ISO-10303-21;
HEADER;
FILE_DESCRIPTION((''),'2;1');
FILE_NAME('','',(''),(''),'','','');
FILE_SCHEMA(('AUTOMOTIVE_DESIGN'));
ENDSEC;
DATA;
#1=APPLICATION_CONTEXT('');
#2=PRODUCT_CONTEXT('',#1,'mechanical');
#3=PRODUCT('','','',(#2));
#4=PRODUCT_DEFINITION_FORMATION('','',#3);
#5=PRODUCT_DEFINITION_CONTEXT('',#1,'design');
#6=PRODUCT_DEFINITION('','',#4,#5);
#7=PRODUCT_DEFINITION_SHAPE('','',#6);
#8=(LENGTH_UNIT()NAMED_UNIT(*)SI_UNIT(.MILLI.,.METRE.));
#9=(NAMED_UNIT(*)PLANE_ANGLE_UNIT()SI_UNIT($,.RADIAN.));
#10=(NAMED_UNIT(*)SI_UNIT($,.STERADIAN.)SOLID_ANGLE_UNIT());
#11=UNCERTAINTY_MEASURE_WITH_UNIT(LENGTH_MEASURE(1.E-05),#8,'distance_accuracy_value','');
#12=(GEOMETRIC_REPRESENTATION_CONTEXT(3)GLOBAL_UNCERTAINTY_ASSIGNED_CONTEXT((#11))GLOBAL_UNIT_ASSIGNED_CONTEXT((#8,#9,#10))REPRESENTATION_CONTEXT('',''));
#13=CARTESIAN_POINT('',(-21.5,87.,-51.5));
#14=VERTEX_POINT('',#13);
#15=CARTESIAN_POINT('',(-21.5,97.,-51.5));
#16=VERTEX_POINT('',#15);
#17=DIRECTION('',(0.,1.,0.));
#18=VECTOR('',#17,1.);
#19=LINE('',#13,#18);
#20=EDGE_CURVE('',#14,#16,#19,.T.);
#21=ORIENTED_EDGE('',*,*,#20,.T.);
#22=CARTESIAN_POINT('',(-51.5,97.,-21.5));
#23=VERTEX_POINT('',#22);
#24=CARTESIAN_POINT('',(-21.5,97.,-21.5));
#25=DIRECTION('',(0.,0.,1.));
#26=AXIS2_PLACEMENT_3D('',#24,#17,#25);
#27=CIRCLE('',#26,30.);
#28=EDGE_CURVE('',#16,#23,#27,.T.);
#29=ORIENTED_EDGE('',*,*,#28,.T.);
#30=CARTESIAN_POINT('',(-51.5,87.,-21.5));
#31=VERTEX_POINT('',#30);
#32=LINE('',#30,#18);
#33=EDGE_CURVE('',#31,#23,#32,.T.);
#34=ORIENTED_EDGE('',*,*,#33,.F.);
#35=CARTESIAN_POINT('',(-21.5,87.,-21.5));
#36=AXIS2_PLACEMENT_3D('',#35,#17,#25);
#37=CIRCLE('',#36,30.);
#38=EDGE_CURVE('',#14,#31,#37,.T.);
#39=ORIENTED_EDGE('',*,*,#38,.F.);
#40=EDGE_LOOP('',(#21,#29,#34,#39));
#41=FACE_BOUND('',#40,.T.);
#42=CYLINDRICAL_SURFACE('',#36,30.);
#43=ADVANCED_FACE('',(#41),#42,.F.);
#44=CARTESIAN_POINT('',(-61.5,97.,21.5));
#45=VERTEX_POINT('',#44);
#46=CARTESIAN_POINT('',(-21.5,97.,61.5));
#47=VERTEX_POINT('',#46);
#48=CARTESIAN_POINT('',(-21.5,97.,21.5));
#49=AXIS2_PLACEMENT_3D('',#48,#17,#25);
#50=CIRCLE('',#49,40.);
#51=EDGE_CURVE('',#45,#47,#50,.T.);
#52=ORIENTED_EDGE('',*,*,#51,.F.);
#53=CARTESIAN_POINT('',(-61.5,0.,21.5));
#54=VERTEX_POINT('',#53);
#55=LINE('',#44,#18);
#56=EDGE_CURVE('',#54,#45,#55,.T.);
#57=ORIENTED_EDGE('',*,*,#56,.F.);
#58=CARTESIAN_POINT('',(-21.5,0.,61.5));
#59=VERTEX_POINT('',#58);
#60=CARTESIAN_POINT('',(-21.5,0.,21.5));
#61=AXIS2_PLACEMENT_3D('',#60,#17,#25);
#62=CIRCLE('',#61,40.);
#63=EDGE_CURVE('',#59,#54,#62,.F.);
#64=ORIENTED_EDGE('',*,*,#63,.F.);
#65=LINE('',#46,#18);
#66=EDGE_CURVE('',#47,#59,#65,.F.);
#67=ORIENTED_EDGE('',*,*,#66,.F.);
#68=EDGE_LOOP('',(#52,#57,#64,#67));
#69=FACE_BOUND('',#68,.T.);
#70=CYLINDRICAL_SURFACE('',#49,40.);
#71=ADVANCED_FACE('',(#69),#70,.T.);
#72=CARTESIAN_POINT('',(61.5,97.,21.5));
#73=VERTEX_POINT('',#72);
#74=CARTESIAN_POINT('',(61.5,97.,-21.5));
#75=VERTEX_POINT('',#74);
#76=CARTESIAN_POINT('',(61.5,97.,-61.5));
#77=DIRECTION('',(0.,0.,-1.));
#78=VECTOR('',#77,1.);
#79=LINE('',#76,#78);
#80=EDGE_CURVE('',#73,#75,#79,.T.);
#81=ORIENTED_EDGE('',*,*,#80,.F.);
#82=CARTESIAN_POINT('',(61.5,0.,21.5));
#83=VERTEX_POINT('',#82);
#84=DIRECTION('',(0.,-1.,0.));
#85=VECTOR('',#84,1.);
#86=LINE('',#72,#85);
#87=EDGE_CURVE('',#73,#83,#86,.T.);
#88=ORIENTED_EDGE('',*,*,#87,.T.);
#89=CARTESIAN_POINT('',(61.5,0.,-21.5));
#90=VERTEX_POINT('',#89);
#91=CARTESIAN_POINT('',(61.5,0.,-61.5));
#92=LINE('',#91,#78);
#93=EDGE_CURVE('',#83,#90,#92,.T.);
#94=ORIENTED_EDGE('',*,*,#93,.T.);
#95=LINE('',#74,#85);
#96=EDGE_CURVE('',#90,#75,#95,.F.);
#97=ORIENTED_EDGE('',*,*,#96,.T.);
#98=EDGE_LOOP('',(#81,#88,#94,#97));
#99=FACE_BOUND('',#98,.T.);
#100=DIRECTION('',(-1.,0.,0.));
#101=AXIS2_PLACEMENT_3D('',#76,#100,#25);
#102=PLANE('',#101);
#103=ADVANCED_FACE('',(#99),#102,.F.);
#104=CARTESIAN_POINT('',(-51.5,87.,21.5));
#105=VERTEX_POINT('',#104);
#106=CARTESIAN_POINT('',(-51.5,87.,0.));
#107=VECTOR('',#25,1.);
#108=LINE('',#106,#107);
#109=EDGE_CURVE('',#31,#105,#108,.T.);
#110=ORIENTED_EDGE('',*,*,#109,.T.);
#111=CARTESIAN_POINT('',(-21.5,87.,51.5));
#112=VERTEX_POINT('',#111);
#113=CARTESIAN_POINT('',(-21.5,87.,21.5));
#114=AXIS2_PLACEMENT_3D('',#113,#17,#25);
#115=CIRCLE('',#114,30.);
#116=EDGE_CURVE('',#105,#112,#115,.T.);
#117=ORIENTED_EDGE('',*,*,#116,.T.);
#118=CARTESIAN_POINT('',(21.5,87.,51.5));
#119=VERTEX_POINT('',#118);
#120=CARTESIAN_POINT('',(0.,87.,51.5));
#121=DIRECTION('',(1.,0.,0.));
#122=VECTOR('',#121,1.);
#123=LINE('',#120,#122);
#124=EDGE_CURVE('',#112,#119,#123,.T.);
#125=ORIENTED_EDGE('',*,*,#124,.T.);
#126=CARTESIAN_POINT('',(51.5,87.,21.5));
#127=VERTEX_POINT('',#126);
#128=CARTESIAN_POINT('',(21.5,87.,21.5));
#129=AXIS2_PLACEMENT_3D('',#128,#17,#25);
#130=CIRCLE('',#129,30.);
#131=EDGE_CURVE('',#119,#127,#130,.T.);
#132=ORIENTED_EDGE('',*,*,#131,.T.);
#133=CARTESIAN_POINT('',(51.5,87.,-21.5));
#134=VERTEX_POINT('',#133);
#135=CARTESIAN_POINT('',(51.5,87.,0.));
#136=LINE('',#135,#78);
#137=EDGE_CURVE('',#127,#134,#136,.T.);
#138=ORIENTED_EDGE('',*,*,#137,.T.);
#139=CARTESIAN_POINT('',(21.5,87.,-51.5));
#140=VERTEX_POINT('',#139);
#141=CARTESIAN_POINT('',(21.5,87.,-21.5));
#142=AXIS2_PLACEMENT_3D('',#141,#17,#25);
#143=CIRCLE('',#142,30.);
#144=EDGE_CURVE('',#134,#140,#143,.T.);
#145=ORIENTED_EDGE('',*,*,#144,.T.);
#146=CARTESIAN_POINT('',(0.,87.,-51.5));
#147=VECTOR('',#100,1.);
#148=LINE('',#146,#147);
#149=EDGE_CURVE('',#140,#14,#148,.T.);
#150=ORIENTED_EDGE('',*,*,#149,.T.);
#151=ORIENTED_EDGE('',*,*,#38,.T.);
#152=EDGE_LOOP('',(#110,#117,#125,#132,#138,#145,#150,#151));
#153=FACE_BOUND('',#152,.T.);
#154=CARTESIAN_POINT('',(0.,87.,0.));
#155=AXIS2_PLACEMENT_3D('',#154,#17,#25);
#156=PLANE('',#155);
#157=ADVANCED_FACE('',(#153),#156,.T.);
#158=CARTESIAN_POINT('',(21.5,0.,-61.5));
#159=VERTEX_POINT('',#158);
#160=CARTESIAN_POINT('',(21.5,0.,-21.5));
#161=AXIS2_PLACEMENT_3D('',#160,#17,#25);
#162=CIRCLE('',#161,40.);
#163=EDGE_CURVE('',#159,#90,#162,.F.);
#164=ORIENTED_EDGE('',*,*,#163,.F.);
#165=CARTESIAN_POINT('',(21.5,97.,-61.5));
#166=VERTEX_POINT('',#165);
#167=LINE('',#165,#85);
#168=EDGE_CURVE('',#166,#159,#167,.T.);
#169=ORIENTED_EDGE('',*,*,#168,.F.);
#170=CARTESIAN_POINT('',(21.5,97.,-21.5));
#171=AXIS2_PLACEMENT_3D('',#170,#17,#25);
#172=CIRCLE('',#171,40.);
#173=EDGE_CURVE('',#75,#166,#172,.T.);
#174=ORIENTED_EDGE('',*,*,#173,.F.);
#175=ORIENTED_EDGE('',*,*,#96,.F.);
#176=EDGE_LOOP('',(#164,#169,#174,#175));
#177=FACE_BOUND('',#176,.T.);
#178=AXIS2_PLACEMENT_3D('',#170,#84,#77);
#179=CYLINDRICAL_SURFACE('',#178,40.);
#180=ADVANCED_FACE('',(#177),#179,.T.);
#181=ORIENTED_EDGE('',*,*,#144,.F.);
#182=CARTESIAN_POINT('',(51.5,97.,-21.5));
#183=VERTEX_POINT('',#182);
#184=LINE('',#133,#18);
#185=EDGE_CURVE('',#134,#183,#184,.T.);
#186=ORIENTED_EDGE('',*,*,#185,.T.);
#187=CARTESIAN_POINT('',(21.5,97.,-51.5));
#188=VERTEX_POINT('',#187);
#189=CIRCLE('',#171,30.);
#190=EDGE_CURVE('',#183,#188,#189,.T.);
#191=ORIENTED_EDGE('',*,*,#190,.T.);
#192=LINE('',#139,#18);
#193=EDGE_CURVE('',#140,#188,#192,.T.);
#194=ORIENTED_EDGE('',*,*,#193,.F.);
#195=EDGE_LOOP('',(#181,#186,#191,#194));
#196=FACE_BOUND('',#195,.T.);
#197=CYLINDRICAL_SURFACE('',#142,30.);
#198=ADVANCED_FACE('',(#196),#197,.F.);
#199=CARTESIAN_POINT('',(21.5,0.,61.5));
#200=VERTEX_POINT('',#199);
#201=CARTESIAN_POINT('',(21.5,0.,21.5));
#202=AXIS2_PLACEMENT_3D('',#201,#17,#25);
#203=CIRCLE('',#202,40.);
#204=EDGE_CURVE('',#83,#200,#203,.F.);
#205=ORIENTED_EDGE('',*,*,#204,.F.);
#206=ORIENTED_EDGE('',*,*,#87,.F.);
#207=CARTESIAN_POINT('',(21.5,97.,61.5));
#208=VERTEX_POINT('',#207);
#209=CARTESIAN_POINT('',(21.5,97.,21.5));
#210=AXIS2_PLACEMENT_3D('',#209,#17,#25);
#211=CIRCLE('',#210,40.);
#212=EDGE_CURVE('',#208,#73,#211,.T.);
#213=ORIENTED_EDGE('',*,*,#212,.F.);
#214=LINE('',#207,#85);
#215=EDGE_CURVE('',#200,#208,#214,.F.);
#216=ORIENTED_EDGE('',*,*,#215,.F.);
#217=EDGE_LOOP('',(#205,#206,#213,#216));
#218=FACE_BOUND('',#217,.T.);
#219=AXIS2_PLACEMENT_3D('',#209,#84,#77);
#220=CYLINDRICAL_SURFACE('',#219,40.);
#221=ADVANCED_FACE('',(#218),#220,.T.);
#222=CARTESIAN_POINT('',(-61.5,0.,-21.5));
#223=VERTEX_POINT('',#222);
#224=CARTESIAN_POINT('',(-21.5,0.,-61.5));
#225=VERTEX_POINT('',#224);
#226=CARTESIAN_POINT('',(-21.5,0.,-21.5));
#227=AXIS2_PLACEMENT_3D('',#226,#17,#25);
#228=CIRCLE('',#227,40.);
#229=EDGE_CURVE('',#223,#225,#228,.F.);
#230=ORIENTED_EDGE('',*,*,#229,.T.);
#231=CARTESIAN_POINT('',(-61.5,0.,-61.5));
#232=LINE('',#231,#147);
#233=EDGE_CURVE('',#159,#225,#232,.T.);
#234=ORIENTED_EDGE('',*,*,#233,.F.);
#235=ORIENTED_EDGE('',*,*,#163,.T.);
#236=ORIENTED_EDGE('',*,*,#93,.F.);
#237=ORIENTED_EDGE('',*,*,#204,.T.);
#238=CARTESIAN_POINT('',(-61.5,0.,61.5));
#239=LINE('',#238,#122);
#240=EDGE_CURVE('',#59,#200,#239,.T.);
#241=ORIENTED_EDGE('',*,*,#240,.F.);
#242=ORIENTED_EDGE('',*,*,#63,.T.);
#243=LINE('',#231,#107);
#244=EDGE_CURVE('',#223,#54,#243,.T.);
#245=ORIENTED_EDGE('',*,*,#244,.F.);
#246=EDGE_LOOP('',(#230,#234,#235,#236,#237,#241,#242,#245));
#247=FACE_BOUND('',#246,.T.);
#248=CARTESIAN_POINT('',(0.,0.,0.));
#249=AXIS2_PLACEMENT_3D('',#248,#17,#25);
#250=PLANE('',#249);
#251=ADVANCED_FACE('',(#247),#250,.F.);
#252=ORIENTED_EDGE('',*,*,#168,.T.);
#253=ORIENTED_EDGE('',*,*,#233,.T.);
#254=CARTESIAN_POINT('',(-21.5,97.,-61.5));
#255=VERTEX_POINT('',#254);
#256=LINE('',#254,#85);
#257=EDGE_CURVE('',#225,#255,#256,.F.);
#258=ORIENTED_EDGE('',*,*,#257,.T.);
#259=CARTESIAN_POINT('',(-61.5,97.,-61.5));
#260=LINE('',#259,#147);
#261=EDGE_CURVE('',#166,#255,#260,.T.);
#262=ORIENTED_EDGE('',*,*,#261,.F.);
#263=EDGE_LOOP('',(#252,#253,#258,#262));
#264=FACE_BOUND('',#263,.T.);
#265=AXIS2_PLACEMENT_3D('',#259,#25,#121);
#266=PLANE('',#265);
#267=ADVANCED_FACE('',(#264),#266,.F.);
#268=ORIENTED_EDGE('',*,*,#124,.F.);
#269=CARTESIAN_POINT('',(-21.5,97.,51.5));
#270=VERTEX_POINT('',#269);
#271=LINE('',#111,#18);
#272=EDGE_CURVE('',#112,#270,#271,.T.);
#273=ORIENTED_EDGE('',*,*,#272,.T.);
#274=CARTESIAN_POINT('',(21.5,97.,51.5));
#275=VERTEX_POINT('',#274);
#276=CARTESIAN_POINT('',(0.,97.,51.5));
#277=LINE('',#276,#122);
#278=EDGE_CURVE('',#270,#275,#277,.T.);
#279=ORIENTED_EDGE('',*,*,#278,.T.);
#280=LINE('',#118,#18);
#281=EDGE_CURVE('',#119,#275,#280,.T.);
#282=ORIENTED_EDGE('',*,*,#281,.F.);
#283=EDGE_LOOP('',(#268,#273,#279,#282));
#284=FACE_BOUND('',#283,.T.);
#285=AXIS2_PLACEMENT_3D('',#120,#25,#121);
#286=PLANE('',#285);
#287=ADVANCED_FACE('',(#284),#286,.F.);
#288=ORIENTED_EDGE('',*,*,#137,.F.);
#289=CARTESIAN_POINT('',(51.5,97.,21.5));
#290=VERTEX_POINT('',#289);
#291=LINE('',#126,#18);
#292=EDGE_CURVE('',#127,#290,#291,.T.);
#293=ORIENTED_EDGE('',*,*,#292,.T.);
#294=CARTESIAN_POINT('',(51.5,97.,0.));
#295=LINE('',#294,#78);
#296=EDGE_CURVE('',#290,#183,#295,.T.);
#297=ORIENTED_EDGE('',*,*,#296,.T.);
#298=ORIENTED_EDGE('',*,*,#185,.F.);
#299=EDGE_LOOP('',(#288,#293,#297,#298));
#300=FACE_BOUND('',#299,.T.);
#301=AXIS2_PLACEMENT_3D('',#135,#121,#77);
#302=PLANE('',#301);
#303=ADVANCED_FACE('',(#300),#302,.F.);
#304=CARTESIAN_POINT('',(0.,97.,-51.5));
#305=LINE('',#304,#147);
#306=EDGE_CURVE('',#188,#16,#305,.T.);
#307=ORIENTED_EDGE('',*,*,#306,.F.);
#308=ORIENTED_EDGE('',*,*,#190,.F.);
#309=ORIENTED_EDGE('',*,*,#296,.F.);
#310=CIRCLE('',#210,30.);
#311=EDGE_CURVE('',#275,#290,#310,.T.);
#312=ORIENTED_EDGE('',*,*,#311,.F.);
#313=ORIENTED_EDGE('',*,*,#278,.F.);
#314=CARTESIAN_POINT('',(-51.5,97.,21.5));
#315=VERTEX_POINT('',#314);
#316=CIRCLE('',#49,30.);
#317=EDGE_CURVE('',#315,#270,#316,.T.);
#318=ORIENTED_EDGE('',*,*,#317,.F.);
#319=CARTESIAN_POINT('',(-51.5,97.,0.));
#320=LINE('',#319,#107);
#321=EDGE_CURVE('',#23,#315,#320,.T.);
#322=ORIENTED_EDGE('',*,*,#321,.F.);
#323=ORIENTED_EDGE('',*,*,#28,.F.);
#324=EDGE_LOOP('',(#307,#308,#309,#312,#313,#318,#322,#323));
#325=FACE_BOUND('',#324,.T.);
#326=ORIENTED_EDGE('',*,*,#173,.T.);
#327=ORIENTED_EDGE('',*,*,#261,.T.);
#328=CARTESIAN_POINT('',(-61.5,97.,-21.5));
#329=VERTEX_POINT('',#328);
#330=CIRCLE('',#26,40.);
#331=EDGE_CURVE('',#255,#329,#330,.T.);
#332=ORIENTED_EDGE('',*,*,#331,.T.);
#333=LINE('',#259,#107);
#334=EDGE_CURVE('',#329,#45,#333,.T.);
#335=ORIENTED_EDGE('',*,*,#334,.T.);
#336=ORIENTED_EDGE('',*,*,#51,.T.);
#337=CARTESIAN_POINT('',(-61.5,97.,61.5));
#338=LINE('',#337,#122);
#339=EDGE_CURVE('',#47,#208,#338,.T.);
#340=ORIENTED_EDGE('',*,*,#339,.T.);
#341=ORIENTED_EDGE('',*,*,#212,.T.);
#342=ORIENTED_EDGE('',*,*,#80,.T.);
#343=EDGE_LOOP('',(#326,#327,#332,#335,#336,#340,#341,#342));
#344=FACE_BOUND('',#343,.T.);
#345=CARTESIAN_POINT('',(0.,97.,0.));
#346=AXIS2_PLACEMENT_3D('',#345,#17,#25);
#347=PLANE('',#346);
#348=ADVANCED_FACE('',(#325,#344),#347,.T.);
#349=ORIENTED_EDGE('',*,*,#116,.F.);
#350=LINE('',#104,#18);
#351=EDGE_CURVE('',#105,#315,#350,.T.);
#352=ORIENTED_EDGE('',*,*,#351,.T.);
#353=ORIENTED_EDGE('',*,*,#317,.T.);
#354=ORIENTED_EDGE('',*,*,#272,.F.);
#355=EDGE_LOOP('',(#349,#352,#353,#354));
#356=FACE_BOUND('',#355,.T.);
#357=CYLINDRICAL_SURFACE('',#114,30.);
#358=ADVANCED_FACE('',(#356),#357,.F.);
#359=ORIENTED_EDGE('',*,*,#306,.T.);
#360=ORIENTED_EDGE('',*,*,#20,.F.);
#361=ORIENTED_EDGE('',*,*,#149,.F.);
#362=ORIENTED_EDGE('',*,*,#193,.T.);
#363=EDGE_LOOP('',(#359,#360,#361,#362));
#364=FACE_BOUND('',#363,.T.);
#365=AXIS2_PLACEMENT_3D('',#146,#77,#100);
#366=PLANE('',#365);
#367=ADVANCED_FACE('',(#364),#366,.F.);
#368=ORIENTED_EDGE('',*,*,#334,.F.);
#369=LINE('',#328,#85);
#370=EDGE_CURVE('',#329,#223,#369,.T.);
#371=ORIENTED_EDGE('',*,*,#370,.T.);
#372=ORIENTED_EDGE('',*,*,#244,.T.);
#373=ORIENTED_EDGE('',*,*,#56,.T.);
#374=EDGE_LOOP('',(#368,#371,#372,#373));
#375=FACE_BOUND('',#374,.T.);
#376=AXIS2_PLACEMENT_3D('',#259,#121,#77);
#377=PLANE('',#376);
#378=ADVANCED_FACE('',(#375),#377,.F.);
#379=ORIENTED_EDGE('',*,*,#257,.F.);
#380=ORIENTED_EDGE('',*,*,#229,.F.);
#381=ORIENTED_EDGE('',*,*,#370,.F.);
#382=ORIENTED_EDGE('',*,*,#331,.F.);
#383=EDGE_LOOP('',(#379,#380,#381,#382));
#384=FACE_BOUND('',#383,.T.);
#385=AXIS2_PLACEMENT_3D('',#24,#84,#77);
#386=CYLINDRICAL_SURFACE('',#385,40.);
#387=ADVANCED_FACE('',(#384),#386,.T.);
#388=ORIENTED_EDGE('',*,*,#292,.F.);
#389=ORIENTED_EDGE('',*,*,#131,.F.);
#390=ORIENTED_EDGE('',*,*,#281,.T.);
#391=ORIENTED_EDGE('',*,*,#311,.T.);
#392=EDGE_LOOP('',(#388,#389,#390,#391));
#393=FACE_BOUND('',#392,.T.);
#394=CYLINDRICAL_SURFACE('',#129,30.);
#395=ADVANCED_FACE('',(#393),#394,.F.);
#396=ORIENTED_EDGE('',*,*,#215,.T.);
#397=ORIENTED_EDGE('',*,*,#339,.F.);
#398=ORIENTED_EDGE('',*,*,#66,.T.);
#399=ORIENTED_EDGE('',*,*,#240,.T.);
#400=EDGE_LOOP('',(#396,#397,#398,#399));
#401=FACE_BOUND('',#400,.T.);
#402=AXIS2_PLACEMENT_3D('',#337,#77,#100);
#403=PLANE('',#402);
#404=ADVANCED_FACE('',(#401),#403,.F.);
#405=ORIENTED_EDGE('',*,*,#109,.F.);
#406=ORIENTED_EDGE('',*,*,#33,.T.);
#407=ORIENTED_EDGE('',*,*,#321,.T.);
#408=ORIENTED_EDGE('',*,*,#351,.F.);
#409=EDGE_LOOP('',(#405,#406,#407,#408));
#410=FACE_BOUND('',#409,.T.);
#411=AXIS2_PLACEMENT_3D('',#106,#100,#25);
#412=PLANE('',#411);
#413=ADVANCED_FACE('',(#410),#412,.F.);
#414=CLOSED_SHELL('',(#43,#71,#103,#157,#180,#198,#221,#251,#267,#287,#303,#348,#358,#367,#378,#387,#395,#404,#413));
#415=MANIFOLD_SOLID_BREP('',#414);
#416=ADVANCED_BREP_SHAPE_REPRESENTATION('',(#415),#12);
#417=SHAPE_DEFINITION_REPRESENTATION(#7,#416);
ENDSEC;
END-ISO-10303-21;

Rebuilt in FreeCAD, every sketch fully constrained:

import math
import FreeCAD as App
import Part
import Sketcher
from FreeCAD import Vector


def edges_at(feature, points):
    """Names of the edges that pass closest to the given points."""
    edges = feature.Shape.Edges
    near = lambda p: min(range(len(edges)), key=lambda i: edges[i].distToShape(Part.Vertex(*p))[0])
    return sorted({f"Edge{near(p) + 1}" for p in points})


def add_polygon(sketch, points):
    """Adds a closed chain of lines whose ends are joined by coincident constraints."""
    first, n = sketch.GeometryCount, len(points)
    for a, b in zip(points, points[1:] + points[:1]):
        sketch.addGeometry(Part.LineSegment(App.Vector(*a, 0), App.Vector(*b, 0)), False)
    for i in range(n):
        sketch.addConstraint(Sketcher.Constraint("Coincident", first + i, 2, first + (i + 1) % n, 1))

doc = App.newDocument("Part")
body = doc.addObject("PartDesign::Body", "Body")

# Sketch on XZ plane
sketch1 = body.newObject("Sketcher::SketchObject", "Sketch")
sketch1.AttachmentSupport = (doc.getObject("XZ_Plane"), [""])
sketch1.MapMode = "FlatFace"
add_polygon(sketch1, [(-62, -62), (-62, 62), (62, 62), (62, -62)])  # lines 0-3
sketch1.addConstraint(Sketcher.Constraint("Vertical", 0))
sketch1.addConstraint(Sketcher.Constraint("Horizontal", 1))
sketch1.addConstraint(Sketcher.Constraint("Vertical", 2))
sketch1.addConstraint(Sketcher.Constraint("Horizontal", 3))
sketch1.addConstraint(Sketcher.Constraint("Symmetric", 0, 2, 2, 2, -1, 1))
sketch1.addConstraint(Sketcher.Constraint("Equal", 3, 0))
sketch1.addConstraint(Sketcher.Constraint("DistanceX", 1, 1, 1, 2, 123.0))
pad1 = body.newObject("PartDesign::Pad", "Pad")
pad1.Profile = sketch1
pad1.Length = 97
pad1.Reversed = True
doc.recompute()

fillet = body.newObject("PartDesign::Fillet", "Fillet")
fillet.Base = (pad1, edges_at(pad1, [(-61.5, 48.5, -61.5)]))
fillet.Radius = 40
doc.recompute()

fillet2 = body.newObject("PartDesign::Fillet", "Fillet001")
fillet2.Base = (fillet, edges_at(fillet, [(61.5, 48.5, -61.5)]))
fillet2.Radius = 40
doc.recompute()

fillet3 = body.newObject("PartDesign::Fillet", "Fillet002")
fillet3.Base = (fillet2, edges_at(fillet2, [(61.5, 48.5, 61.5)]))
fillet3.Radius = 40
doc.recompute()

fillet4 = body.newObject("PartDesign::Fillet", "Fillet003")
fillet4.Base = (fillet3, edges_at(fillet3, [(-61.5, 48.5, 61.5)]))
fillet4.Radius = 40

# Sketch on XZ plane
sketch2 = body.newObject("Sketcher::SketchObject", "Sketch001")
sketch2.AttachmentSupport = (doc.getObject("XZ_Plane"), [""])
sketch2.MapMode = "FlatFace"
sketch2.AttachmentOffset = App.Placement(Vector(0, 0, -97), App.Rotation())
sketch2.addGeometry(Part.LineSegment(Vector(22, -52, 0), Vector(-22, -52, 0)), False)
sketch2.addGeometry(Part.ArcOfCircle(Part.Circle(Vector(-22, -22, 0), Vector(0, 0, 1), 30), math.radians(180), math.radians(270)), False)
sketch2.addGeometry(Part.LineSegment(Vector(-52, -22, 0), Vector(-52, 22, 0)), False)
sketch2.addGeometry(Part.ArcOfCircle(Part.Circle(Vector(-22, 22, 0), Vector(0, 0, 1), 30), math.radians(90), math.radians(180)), False)
sketch2.addGeometry(Part.LineSegment(Vector(-22, 52, 0), Vector(22, 52, 0)), False)
sketch2.addGeometry(Part.ArcOfCircle(Part.Circle(Vector(22, 22, 0), Vector(0, 0, 1), 30), math.radians(0), math.radians(90)), False)
sketch2.addGeometry(Part.LineSegment(Vector(52, 22, 0), Vector(52, -22, 0)), False)
sketch2.addGeometry(Part.ArcOfCircle(Part.Circle(Vector(22, -22, 0), Vector(0, 0, 1), 30), math.radians(-90), math.radians(0)), False)
sketch2.addConstraint(Sketcher.Constraint("Tangent", 0, 2, 1, 2))
sketch2.addConstraint(Sketcher.Constraint("Tangent", 1, 1, 2, 1))
sketch2.addConstraint(Sketcher.Constraint("Tangent", 2, 2, 3, 2))
sketch2.addConstraint(Sketcher.Constraint("Tangent", 3, 1, 4, 1))
sketch2.addConstraint(Sketcher.Constraint("Tangent", 4, 2, 5, 2))
sketch2.addConstraint(Sketcher.Constraint("Tangent", 5, 1, 6, 1))
sketch2.addConstraint(Sketcher.Constraint("Tangent", 6, 2, 7, 2))
sketch2.addConstraint(Sketcher.Constraint("Tangent", 7, 1, 0, 1))
sketch2.addConstraint(Sketcher.Constraint("Horizontal", 0))
sketch2.addConstraint(Sketcher.Constraint("Vertical", 2))
sketch2.addConstraint(Sketcher.Constraint("Horizontal", 4))
sketch2.addConstraint(Sketcher.Constraint("Vertical", 6))
sketch2.addConstraint(Sketcher.Constraint("Equal", 1, 3))
sketch2.addConstraint(Sketcher.Constraint("Equal", 3, 5))
sketch2.addConstraint(Sketcher.Constraint("Equal", 5, 7))
sketch2.addConstraint(Sketcher.Constraint("Symmetric", 1, 3, 5, 3, -1, 1))
sketch2.addConstraint(Sketcher.Constraint("Equal", 4, 2))
sketch2.addConstraint(Sketcher.Constraint("Radius", 1, 30.0))
sketch2.addConstraint(Sketcher.Constraint("DistanceX", 0, 2, 0, 1, 43.0))
pocket1 = body.newObject("PartDesign::Pocket", "Pocket")
pocket1.Profile = sketch2
pocket1.Length = 10
pocket1.Reversed = True

doc.recompute()
